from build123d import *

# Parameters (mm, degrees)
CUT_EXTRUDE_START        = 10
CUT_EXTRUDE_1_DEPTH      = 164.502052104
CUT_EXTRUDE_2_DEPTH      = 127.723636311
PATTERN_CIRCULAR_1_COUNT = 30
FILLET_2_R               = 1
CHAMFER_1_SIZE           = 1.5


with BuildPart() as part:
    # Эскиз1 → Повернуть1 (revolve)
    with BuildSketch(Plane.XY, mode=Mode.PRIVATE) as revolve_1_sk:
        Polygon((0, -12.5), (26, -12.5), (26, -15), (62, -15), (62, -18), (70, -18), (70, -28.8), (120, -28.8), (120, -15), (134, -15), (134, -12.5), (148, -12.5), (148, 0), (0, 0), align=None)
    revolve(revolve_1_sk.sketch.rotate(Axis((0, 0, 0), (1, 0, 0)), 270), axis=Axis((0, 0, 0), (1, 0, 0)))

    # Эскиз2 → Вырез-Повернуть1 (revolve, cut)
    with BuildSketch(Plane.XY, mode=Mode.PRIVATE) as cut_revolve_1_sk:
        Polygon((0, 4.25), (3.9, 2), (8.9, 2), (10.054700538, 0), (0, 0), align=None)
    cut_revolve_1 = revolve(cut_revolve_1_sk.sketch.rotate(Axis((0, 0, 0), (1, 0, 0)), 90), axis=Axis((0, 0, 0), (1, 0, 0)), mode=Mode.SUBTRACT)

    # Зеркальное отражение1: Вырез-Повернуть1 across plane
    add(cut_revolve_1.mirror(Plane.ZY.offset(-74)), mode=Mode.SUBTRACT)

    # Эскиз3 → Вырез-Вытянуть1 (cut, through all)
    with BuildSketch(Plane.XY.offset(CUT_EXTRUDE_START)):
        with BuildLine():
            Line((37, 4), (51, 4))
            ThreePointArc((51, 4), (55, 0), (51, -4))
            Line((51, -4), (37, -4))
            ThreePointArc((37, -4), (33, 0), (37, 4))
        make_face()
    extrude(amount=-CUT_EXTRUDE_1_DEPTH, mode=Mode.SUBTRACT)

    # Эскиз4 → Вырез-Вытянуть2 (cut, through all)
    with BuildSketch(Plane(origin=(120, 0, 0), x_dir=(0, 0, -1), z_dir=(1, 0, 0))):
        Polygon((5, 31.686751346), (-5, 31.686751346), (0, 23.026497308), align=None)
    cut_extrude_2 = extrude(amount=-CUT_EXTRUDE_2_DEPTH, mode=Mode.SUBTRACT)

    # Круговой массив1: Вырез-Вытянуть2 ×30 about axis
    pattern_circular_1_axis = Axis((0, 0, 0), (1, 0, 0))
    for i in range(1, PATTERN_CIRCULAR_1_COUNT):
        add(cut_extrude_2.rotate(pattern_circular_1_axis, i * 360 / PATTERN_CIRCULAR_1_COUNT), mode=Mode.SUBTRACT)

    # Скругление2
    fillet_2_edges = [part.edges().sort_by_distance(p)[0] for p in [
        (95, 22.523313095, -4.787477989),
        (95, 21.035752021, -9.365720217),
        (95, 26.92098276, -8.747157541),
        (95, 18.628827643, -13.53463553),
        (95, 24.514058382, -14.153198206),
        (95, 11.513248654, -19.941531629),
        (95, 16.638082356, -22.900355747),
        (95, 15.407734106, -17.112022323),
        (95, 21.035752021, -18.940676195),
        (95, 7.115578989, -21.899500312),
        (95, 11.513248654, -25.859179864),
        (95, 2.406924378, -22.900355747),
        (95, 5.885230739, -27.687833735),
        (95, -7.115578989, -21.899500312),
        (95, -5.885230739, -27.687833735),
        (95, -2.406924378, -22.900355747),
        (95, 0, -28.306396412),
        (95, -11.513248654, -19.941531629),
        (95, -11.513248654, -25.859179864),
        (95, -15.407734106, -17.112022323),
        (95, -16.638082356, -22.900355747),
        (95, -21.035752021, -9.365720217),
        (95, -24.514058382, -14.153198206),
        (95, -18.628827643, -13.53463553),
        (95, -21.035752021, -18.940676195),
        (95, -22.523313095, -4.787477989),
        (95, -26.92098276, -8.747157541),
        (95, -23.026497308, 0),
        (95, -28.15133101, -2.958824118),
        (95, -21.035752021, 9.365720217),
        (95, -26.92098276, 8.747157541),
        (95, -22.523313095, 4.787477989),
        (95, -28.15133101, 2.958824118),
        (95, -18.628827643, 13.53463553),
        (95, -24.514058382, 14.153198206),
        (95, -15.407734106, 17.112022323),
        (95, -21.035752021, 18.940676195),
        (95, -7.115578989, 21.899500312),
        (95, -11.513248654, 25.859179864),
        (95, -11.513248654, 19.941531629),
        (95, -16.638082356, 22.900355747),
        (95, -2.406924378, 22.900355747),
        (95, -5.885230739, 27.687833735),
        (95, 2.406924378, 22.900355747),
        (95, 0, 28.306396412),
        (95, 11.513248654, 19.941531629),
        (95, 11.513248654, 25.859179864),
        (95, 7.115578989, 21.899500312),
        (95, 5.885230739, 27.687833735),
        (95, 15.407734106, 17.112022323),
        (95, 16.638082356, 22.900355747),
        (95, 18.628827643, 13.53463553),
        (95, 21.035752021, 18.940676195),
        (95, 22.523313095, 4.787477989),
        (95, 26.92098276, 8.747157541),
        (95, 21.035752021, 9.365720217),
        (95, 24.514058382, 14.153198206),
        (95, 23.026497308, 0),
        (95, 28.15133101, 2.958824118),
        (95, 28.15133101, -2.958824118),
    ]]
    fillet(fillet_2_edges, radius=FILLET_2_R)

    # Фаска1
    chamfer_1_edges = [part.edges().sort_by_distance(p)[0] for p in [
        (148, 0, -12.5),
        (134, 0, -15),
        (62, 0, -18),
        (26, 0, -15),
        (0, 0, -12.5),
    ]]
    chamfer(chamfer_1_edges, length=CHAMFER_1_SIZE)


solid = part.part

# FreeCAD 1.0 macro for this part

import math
import FreeCAD as App
import Part
import Sketcher
Q = App.Units.Quantity


def edges_at(feature, points):
    """Names of the edges that pass closest to the given points."""
    edges = feature.Shape.Edges
    near = lambda p: min(range(len(edges)), key=lambda i: edges[i].distToShape(Part.Vertex(*p))[0])
    return sorted({f"Edge{near(p) + 1}" for p in points})

doc = App.newDocument("Part")
body = doc.addObject("PartDesign::Body", "Body")

# Sketch on XY plane
sketch1 = body.newObject("Sketcher::SketchObject", "Sketch")
sketch1.AttachmentSupport = (doc.getObject("XY_Plane"), [""])
sketch1.MapMode = "FlatFace"
sketch1.addGeometry([
    Part.LineSegment(App.Vector(0, -12.5, 0), App.Vector(26, -12.5, 0)),  # 0
    Part.LineSegment(App.Vector(26, -12.5, 0), App.Vector(26, -15, 0)),  # 1
    Part.LineSegment(App.Vector(26, -15, 0), App.Vector(62, -15, 0)),  # 2
    Part.LineSegment(App.Vector(62, -15, 0), App.Vector(62, -18, 0)),  # 3
    Part.LineSegment(App.Vector(62, -18, 0), App.Vector(70, -18, 0)),  # 4
    Part.LineSegment(App.Vector(70, -18, 0), App.Vector(70, -28.8, 0)),  # 5
    Part.LineSegment(App.Vector(70, -28.8, 0), App.Vector(120, -28.8, 0)),  # 6
    Part.LineSegment(App.Vector(120, -28.8, 0), App.Vector(120, -15, 0)),  # 7
    Part.LineSegment(App.Vector(120, -15, 0), App.Vector(134, -15, 0)),  # 8
    Part.LineSegment(App.Vector(134, -15, 0), App.Vector(134, -12.5, 0)),  # 9
    Part.LineSegment(App.Vector(134, -12.5, 0), App.Vector(148, -12.5, 0)),  # 10
    Part.LineSegment(App.Vector(148, -12.5, 0), App.Vector(148, 0, 0)),  # 11
    Part.LineSegment(App.Vector(148, 0, 0), App.Vector(0, 0, 0)),  # 12
    Part.LineSegment(App.Vector(0, 0, 0), App.Vector(0, -12.5, 0)),  # 13
], False)
sketch1.addConstraint([
    Sketcher.Constraint("Coincident", 0, 2, 1, 1),
    Sketcher.Constraint("Coincident", 1, 2, 2, 1),
    Sketcher.Constraint("Coincident", 2, 2, 3, 1),
    Sketcher.Constraint("Coincident", 3, 2, 4, 1),
    Sketcher.Constraint("Coincident", 4, 2, 5, 1),
    Sketcher.Constraint("Coincident", 5, 2, 6, 1),
    Sketcher.Constraint("Coincident", 6, 2, 7, 1),
    Sketcher.Constraint("Coincident", 7, 2, 8, 1),
    Sketcher.Constraint("Coincident", 8, 2, 9, 1),
    Sketcher.Constraint("Coincident", 9, 2, 10, 1),
    Sketcher.Constraint("Coincident", 10, 2, 11, 1),
    Sketcher.Constraint("Coincident", 11, 2, 12, 1),
    Sketcher.Constraint("Coincident", 12, 2, 13, 1),
    Sketcher.Constraint("Coincident", 13, 2, 0, 1),
    Sketcher.Constraint("Horizontal", 0),
    Sketcher.Constraint("Vertical", 1),
    Sketcher.Constraint("Horizontal", 2),
    Sketcher.Constraint("Vertical", 3),
    Sketcher.Constraint("Horizontal", 4),
    Sketcher.Constraint("Vertical", 5),
    Sketcher.Constraint("Horizontal", 6),
    Sketcher.Constraint("Vertical", 7),
    Sketcher.Constraint("Horizontal", 8),
    Sketcher.Constraint("Vertical", 9),
    Sketcher.Constraint("Horizontal", 10),
    Sketcher.Constraint("Vertical", 11),
    Sketcher.Constraint("Horizontal", 12),
    Sketcher.Constraint("Vertical", 13),
    Sketcher.Constraint("Coincident", 12, 2, -1, 1),
    Sketcher.Constraint("Horizontal", 2, 2, 7, 2),
    Sketcher.Constraint("Horizontal", 0, 2, 9, 2),
    Sketcher.Constraint("Equal", 8, 10),
    Sketcher.Constraint("DistanceX", 0, 1, 0, 2, Q("26 mm")),
    Sketcher.Constraint("DistanceX", 2, 1, 2, 2, Q("36 mm")),
    Sketcher.Constraint("DistanceX", 4, 1, 4, 2, Q("8 mm")),
    Sketcher.Constraint("DistanceX", 6, 1, 6, 2, Q("50 mm")),
    Sketcher.Constraint("DistanceX", 8, 1, 8, 2, Q("14 mm")),
    Sketcher.Constraint("DistanceY", 3, 2, 3, 1, Q("3 mm")),
    Sketcher.Constraint("DistanceY", 1, 2, 1, 1, Q("2.5 mm")),
    Sketcher.Constraint("DistanceY", 5, 2, 5, 1, Q("10.8 mm")),
    Sketcher.Constraint("DistanceY", 11, 1, 11, 2, Q("12.5 mm")),
])
revolution = body.newObject("PartDesign::Revolution", "Revolution")
revolution.Profile = sketch1
revolution.ReferenceAxis = (sketch1, ["H_Axis"])
revolution.Angle = 360

# Sketch on XY plane
sketch2 = body.newObject("Sketcher::SketchObject", "Sketch001")
sketch2.AttachmentSupport = (doc.getObject("XY_Plane"), [""])
sketch2.MapMode = "FlatFace"
sketch2.addGeometry([
    Part.LineSegment(App.Vector(3.9, 2, 0), App.Vector(0, 4.2, 0)),  # 0
    Part.LineSegment(App.Vector(0, 4.2, 0), App.Vector(0, 0, 0)),  # 1
    Part.LineSegment(App.Vector(0, 0, 0), App.Vector(10.1, 0, 0)),  # 2
    Part.LineSegment(App.Vector(10.1, 0, 0), App.Vector(8.9, 2, 0)),  # 3
    Part.LineSegment(App.Vector(8.9, 2, 0), App.Vector(3.9, 2, 0)),  # 4
], False)
sketch2.addConstraint([
    Sketcher.Constraint("Coincident", 0, 2, 1, 1),
    Sketcher.Constraint("Coincident", 1, 2, 2, 1),
    Sketcher.Constraint("Coincident", 2, 2, 3, 1),
    Sketcher.Constraint("Coincident", 3, 2, 4, 1),
    Sketcher.Constraint("Coincident", 4, 2, 0, 1),
    Sketcher.Constraint("Vertical", 1),
    Sketcher.Constraint("Horizontal", 2),
    Sketcher.Constraint("Horizontal", 4),
    Sketcher.Constraint("Coincident", 1, 2, -1, 1),
    Sketcher.Constraint("DistanceX", 4, 2, 4, 1, Q("5 mm")),
    Sketcher.Constraint("Angle", 3, Q("120 deg")),
    Sketcher.Constraint("DistanceY", -1, 1, 3, 2, Q("2 mm")),
    Sketcher.Constraint("DistanceY", 1, 2, 1, 1, Q("4.25 mm")),
    Sketcher.Constraint("DistanceX", -1, 1, 3, 2, Q("8.9 mm")),
])
groove = body.newObject("PartDesign::Groove", "Groove")
groove.Profile = sketch2
groove.ReferenceAxis = (sketch2, ["H_Axis"])
groove.Angle = 360
doc.recompute()

datumplane = body.newObject("PartDesign::Plane", "DatumPlane")
datumplane.AttachmentSupport = (doc.getObject("YZ_Plane"), [""])
datumplane.MapMode = "FlatFace"
datumplane.AttachmentOffset = App.Placement(App.Vector(0, 0, 74), App.Rotation())
mirrored = body.newObject("PartDesign::Mirrored", "Mirrored")
mirrored.Originals = [groove]
mirrored.MirrorPlane = (datumplane, [""])
body.Tip = mirrored

# Sketch on XY plane
sketch3 = body.newObject("Sketcher::SketchObject", "Sketch002")
sketch3.AttachmentSupport = (doc.getObject("XY_Plane"), [""])
sketch3.MapMode = "FlatFace"
sketch3.AttachmentOffset = App.Placement(App.Vector(0, 0, 10), App.Rotation())
sketch3.addGeometry([
    Part.LineSegment(App.Vector(51, 4, 0), App.Vector(37, 4, 0)),
    Part.ArcOfCircle(Part.Circle(App.Vector(37, 0, 0), App.Vector(0, 0, 1), 4), math.radians(90), math.radians(270)),
    Part.LineSegment(App.Vector(37, -4, 0), App.Vector(51, -4, 0)),
    Part.ArcOfCircle(Part.Circle(App.Vector(51, 0, 0), App.Vector(0, 0, 1), 4), math.radians(-90), math.radians(90)),
], False)
sketch3.addConstraint([
    Sketcher.Constraint("Tangent", 0, 2, 1, 1),
    Sketcher.Constraint("Tangent", 1, 2, 2, 1),
    Sketcher.Constraint("Tangent", 2, 2, 3, 1),
    Sketcher.Constraint("Tangent", 3, 2, 0, 1),
    Sketcher.Constraint("Horizontal", 0),
    Sketcher.Constraint("Horizontal", 2),
    Sketcher.Constraint("PointOnObject", 1, 3, -1),
    Sketcher.Constraint("Radius", 1, Q("4 mm")),
    Sketcher.Constraint("DistanceX", 0, 2, 0, 1, Q("14 mm")),
    Sketcher.Constraint("DistanceX", -1, 1, 1, 3, Q("37 mm")),
])
pocket1 = body.newObject("PartDesign::Pocket", "Pocket")
pocket1.Profile = sketch3
pocket1.Type = "ThroughAll"

# Sketch on YZ plane
sketch4 = body.newObject("Sketcher::SketchObject", "Sketch003")
sketch4.AttachmentSupport = (doc.getObject("YZ_Plane"), [""])
sketch4.MapMode = "FlatFace"
sketch4.AttachmentOffset = App.Placement(App.Vector(0, 0, 120), App.Rotation())
sketch4.addGeometry([
    Part.LineSegment(App.Vector(32, -5, 0), App.Vector(32, 5, 0)),
    Part.LineSegment(App.Vector(32, 5, 0), App.Vector(23, 0, 0)),
    Part.LineSegment(App.Vector(23, 0, 0), App.Vector(32, -5, 0)),
], False)
sketch4.addConstraint([
    Sketcher.Constraint("Coincident", 0, 2, 1, 1),
    Sketcher.Constraint("Coincident", 1, 2, 2, 1),
    Sketcher.Constraint("Coincident", 2, 2, 0, 1),
    Sketcher.Constraint("Vertical", 0),
    Sketcher.Constraint("PointOnObject", 1, 2, -1),
    Sketcher.Constraint("Equal", 1, 2),
    Sketcher.Constraint("DistanceY", 0, 1, 0, 2, Q("10 mm")),
    Sketcher.Constraint("Angle", 1, Q("-150 deg")),
    Sketcher.Constraint("DistanceX", -1, 1, 0, 2, Q("31.686751 mm")),
])
pocket2 = body.newObject("PartDesign::Pocket", "Pocket001")
pocket2.Profile = sketch4
pocket2.Type = "ThroughAll"
doc.recompute()

polarpattern = body.newObject("PartDesign::PolarPattern", "PolarPattern")
polarpattern.Originals = [pocket2]
polarpattern.Axis = (doc.getObject("X_Axis"), [""])
polarpattern.Angle = 360
polarpattern.Occurrences = 30
body.Tip = polarpattern
doc.recompute()

fillet = body.newObject("PartDesign::Fillet", "Fillet")
fillet.Base = (polarpattern, edges_at(polarpattern, [
    (95, 22.523, -4.787),
    (95, 21.036, -9.366),
    (95, 26.921, -8.747),
    (95, 18.629, -13.535),
    (95, 24.514, -14.153),
    (95, 11.513, -19.942),
    (95, 16.638, -22.9),
    (95, 15.408, -17.112),
    (95, 21.036, -18.941),
    (95, 7.116, -21.9),
    (95, 11.513, -25.859),
    (95, 2.407, -22.9),
    (95, 5.885, -27.688),
    (95, -7.116, -21.9),
    (95, -5.885, -27.688),
    (95, -2.407, -22.9),
    (95, 0, -28.306),
    (95, -11.513, -19.942),
    (95, -11.513, -25.859),
    (95, -15.408, -17.112),
    (95, -16.638, -22.9),
    (95, -21.036, -9.366),
    (95, -24.514, -14.153),
    (95, -18.629, -13.535),
    (95, -21.036, -18.941),
    (95, -22.523, -4.787),
    (95, -26.921, -8.747),
    (95, -23.026, 0),
    (95, -28.151, -2.959),
    (95, -21.036, 9.366),
    (95, -26.921, 8.747),
    (95, -22.523, 4.787),
    (95, -28.151, 2.959),
    (95, -18.629, 13.535),
    (95, -24.514, 14.153),
    (95, -15.408, 17.112),
    (95, -21.036, 18.941),
    (95, -7.116, 21.9),
    (95, -11.513, 25.859),
    (95, -11.513, 19.942),
    (95, -16.638, 22.9),
    (95, -2.407, 22.9),
    (95, -5.885, 27.688),
    (95, 2.407, 22.9),
    (95, 0, 28.306),
    (95, 11.513, 19.942),
    (95, 11.513, 25.859),
    (95, 7.116, 21.9),
    (95, 5.885, 27.688),
    (95, 15.408, 17.112),
    (95, 16.638, 22.9),
    (95, 18.629, 13.535),
    (95, 21.036, 18.941),
    (95, 22.523, 4.787),
    (95, 26.921, 8.747),
    (95, 21.036, 9.366),
    (95, 24.514, 14.153),
    (95, 23.026, 0),
    (95, 28.151, 2.959),
    (95, 28.151, -2.959),
]))
fillet.Radius = 1
doc.recompute()

chamfer = body.newObject("PartDesign::Chamfer", "Chamfer")
chamfer.Base = (fillet, edges_at(fillet, [
    (148, 0, -12.5),
    (134, 0, -15),
    (62, 0, -18),
    (26, 0, -15),
    (0, 0, -12.5),
]))
chamfer.Size = 1.5

doc.recompute()
